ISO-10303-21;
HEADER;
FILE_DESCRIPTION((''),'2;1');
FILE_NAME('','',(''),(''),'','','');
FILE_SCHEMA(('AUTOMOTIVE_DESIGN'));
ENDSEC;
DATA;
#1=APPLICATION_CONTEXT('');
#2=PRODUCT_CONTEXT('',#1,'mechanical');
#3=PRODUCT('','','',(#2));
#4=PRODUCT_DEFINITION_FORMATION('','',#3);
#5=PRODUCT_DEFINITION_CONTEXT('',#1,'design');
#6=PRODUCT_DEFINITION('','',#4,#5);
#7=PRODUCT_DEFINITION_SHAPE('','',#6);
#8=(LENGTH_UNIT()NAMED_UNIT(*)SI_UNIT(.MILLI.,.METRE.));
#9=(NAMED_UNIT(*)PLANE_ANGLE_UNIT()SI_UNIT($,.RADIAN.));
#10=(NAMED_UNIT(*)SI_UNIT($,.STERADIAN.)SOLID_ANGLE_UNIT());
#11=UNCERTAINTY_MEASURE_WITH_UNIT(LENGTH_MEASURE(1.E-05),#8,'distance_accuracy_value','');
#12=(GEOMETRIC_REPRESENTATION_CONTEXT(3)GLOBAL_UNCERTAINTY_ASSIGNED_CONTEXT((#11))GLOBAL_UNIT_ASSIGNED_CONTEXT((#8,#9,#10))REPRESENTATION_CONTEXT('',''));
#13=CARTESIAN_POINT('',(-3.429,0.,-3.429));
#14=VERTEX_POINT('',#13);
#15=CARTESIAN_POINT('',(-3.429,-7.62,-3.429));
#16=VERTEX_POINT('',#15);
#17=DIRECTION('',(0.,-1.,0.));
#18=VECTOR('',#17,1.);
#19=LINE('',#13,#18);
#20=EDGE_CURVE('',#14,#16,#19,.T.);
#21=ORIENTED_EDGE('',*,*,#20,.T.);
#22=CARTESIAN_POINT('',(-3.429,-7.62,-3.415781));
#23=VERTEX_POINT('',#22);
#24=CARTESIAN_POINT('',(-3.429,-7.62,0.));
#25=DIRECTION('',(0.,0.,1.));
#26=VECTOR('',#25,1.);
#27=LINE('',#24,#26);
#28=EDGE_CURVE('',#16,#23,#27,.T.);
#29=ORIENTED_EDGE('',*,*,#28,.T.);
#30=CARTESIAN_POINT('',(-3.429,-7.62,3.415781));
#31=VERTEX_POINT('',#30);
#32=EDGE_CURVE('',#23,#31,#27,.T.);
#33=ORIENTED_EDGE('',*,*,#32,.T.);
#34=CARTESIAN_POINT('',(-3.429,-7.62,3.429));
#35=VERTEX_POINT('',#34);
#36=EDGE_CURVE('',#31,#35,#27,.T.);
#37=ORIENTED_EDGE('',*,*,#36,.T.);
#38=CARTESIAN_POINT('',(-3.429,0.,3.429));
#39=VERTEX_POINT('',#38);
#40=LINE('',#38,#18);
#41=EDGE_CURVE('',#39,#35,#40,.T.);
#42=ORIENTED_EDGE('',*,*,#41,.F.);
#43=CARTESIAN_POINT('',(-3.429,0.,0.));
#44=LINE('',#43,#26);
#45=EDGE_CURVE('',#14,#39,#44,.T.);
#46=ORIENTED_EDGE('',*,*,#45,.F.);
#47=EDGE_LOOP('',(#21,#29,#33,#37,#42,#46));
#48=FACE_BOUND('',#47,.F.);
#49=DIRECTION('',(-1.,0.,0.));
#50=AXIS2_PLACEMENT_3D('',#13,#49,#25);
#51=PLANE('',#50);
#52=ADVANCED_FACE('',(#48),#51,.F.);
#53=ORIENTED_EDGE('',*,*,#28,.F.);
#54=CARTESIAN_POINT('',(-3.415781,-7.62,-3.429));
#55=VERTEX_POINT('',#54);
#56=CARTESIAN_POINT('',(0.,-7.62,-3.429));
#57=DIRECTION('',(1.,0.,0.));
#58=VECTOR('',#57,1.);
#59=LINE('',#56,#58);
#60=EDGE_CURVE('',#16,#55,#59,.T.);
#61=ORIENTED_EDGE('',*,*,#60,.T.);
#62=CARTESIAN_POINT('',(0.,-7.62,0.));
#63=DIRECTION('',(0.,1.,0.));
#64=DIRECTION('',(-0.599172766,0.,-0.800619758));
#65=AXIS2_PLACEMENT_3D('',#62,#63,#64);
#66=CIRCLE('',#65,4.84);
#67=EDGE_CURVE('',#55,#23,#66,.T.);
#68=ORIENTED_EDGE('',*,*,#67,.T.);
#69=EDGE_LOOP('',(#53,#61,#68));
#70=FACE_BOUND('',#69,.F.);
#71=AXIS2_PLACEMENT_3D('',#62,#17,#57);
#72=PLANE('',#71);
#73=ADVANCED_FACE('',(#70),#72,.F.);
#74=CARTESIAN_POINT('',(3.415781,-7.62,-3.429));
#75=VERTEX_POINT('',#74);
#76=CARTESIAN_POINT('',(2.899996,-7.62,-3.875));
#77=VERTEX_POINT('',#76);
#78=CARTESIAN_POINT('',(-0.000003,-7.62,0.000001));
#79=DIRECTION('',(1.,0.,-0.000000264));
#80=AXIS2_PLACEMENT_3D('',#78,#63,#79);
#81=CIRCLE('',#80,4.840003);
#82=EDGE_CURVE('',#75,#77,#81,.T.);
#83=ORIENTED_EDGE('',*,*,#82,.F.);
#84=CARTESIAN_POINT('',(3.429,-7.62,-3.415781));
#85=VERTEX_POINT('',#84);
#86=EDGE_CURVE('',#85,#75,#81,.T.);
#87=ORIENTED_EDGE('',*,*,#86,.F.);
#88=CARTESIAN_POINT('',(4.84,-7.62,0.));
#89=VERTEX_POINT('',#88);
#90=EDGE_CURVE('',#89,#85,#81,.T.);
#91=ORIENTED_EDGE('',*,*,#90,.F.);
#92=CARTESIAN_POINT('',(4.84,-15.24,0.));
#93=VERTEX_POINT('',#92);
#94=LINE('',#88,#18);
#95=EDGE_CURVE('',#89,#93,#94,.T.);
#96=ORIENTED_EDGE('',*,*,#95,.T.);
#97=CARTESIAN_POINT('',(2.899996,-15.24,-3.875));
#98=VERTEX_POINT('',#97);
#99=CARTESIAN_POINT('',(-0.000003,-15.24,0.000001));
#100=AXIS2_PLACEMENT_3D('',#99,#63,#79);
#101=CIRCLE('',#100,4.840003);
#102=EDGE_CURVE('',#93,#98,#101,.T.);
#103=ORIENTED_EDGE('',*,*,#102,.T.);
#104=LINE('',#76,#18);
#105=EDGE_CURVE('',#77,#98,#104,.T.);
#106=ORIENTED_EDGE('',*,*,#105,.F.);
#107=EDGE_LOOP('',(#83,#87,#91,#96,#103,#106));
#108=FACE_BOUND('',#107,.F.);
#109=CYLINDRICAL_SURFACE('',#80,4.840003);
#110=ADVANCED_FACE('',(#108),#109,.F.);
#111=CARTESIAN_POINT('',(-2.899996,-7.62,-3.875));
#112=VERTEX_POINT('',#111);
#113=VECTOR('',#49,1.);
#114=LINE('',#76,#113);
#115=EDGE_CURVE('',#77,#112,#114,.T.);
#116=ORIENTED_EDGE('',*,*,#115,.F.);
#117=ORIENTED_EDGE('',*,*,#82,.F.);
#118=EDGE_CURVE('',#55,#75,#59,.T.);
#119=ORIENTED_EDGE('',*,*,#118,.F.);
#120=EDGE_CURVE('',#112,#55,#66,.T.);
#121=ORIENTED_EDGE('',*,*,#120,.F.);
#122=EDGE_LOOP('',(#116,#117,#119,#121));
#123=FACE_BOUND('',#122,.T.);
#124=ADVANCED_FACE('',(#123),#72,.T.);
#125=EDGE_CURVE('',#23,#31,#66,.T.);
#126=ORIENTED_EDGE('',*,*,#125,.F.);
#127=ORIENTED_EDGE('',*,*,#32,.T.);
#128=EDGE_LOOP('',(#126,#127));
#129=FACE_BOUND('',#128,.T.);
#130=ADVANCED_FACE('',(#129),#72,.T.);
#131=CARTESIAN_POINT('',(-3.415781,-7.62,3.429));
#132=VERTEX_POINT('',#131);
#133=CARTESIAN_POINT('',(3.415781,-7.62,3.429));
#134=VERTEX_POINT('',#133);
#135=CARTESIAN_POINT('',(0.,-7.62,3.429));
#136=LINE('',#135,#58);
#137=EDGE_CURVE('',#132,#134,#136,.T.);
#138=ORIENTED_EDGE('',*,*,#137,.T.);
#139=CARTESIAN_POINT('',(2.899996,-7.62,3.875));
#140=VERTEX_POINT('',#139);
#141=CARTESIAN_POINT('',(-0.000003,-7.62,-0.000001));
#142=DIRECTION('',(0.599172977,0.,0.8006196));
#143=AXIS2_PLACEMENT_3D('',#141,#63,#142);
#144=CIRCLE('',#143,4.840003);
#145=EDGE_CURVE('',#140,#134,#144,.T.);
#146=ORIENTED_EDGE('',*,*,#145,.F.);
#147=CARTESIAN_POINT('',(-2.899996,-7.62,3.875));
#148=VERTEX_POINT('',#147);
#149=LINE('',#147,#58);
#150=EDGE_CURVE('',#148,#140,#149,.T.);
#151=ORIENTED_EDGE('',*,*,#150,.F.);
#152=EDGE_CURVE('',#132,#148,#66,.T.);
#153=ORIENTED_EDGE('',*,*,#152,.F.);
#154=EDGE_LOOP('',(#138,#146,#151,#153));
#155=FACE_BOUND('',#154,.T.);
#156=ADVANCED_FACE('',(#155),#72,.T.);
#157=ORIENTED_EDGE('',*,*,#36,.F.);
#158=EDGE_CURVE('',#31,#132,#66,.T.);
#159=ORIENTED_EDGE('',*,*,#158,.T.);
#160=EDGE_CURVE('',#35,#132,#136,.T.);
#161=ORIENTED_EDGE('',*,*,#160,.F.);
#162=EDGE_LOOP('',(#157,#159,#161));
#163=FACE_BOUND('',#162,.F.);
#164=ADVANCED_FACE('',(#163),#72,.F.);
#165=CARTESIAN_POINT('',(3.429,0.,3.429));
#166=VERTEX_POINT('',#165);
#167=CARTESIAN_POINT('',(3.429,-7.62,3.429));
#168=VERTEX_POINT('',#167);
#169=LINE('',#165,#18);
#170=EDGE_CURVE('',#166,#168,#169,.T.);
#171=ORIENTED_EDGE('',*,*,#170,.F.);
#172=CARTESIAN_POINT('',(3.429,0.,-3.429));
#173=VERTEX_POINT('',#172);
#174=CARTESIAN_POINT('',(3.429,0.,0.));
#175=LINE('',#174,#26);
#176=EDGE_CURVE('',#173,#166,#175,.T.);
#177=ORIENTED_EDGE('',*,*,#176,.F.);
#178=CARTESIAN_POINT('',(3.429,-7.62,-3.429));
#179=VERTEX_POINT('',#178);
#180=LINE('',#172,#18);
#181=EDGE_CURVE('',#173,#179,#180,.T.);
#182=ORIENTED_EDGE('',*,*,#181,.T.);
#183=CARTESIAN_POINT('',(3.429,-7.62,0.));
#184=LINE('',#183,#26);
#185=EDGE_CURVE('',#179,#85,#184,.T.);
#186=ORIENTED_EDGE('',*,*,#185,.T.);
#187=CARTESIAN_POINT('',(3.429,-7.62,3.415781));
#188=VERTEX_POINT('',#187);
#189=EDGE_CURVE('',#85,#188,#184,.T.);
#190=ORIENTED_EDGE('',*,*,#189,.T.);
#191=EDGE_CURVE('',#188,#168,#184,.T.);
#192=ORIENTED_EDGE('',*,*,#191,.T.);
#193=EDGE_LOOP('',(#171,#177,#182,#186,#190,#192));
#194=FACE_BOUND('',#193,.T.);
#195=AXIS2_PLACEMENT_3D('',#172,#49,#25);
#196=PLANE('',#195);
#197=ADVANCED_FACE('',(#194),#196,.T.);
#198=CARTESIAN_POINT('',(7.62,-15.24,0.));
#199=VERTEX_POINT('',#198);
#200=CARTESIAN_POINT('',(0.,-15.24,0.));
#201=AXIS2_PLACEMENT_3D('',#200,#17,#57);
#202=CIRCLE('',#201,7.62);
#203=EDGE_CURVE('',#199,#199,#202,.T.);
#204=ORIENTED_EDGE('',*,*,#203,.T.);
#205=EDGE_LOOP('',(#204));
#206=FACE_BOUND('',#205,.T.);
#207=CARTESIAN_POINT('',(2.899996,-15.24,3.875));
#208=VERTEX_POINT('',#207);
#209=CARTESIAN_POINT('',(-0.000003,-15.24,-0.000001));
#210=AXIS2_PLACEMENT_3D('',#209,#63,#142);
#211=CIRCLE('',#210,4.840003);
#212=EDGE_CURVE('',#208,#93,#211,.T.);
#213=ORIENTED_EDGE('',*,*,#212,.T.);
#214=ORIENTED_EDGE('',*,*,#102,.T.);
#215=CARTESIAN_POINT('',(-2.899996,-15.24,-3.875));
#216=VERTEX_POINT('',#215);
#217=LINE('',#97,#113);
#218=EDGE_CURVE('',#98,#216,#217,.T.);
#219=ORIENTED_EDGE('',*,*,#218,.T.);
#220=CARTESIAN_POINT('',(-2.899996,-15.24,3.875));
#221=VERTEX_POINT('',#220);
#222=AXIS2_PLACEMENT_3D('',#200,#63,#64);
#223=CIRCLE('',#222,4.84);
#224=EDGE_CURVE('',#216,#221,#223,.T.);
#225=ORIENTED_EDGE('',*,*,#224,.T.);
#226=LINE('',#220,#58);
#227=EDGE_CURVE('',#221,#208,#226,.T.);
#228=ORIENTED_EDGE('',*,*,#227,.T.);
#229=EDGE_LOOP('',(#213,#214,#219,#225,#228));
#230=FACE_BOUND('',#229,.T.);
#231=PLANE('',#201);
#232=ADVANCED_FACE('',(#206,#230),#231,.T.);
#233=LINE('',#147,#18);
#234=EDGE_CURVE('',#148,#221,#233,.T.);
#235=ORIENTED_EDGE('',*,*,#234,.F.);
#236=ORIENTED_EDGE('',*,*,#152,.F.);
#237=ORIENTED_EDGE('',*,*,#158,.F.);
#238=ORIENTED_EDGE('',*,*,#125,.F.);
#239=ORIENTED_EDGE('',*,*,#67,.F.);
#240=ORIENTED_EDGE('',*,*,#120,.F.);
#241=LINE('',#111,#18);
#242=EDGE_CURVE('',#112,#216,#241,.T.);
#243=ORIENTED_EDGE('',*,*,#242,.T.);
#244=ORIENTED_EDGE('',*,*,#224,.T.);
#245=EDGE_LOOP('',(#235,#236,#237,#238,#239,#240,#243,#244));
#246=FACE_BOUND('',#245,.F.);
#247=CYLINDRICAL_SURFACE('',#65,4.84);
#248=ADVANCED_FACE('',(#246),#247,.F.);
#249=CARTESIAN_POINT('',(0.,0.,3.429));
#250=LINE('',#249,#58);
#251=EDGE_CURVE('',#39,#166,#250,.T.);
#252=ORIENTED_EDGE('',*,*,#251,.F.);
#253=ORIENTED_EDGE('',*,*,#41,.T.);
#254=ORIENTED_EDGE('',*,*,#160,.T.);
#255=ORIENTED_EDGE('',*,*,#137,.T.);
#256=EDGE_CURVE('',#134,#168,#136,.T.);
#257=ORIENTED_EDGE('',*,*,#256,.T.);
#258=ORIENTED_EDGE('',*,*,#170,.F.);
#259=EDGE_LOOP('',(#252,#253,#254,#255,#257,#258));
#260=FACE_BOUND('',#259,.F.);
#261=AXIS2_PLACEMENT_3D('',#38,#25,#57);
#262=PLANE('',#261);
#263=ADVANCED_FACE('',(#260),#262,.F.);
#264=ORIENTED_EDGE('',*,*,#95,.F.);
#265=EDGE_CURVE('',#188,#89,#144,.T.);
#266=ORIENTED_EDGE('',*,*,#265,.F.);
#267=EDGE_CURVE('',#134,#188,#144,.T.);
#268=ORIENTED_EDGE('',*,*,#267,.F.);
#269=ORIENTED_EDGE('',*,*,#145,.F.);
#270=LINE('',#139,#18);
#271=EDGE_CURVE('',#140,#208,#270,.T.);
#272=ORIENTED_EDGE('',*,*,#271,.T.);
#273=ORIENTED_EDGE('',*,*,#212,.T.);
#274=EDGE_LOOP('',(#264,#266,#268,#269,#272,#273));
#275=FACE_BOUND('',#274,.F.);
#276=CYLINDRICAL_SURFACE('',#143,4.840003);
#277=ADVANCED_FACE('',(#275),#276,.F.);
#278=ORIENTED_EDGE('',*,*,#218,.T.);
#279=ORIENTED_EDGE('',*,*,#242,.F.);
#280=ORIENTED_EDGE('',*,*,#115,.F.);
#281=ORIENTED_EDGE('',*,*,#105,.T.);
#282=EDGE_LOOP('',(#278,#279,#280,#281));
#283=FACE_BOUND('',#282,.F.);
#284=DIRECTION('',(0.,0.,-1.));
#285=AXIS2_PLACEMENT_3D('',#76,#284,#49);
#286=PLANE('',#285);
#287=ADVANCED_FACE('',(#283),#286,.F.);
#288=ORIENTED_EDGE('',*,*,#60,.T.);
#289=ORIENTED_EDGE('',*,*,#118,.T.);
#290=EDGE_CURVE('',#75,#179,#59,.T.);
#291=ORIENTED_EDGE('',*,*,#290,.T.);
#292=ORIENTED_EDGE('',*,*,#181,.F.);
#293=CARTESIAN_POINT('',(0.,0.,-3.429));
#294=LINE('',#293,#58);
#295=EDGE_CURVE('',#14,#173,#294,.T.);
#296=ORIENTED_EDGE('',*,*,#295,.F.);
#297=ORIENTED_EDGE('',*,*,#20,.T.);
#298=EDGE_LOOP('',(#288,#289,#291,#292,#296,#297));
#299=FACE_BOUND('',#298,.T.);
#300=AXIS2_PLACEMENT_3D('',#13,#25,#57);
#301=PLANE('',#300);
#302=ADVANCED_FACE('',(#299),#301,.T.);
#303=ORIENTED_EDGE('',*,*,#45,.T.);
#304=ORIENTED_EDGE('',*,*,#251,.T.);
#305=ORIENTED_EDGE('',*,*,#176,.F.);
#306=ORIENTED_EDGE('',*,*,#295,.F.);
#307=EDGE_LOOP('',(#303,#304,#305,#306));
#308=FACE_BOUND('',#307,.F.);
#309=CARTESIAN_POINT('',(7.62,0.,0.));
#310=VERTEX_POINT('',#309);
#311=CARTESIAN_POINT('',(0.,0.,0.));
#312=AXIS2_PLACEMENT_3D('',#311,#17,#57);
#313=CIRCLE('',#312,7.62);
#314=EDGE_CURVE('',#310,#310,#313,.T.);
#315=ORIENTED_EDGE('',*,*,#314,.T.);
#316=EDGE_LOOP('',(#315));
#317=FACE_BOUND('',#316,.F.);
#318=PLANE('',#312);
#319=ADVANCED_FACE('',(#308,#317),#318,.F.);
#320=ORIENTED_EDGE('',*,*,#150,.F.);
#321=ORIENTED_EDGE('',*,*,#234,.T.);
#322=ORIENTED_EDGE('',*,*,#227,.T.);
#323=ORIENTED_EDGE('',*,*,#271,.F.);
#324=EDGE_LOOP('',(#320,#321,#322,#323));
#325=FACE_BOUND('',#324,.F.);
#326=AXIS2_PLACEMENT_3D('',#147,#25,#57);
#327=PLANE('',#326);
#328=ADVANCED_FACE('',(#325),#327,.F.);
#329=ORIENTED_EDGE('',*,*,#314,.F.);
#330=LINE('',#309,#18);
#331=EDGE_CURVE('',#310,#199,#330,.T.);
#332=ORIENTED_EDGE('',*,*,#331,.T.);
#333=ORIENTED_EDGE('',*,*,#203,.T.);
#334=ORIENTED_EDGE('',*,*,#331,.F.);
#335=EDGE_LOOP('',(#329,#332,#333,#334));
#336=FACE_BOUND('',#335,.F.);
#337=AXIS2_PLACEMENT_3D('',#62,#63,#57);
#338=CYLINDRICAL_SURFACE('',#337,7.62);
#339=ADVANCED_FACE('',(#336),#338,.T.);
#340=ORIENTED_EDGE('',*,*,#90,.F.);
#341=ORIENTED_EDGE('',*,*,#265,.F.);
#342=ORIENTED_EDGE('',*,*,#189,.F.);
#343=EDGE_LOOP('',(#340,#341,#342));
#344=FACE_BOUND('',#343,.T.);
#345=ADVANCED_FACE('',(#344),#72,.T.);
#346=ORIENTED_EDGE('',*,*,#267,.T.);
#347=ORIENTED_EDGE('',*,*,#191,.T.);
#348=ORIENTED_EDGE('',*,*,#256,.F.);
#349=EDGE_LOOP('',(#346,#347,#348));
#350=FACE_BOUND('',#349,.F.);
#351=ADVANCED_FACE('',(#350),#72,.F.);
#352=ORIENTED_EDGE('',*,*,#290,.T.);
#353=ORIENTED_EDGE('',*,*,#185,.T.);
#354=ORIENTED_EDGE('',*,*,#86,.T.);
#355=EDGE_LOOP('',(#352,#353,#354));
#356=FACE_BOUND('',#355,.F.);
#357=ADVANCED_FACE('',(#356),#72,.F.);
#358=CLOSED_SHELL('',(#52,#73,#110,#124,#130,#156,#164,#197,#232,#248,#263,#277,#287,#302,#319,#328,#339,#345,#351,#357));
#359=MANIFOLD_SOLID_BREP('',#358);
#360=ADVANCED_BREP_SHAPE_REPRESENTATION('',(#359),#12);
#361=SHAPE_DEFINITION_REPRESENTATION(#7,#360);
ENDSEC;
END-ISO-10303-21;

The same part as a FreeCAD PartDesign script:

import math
import FreeCAD as App
import Part
import Sketcher
from FreeCAD import Vector
Q = App.Units.Quantity

doc = App.newDocument("Part")
body = doc.addObject("PartDesign::Body", "Body")

# Sketch on XZ plane
sketch1 = body.newObject("Sketcher::SketchObject", "Sketch")
sketch1.AttachmentSupport = (doc.getObject("XZ_Plane"), [""])
sketch1.MapMode = "FlatFace"
sketch1.addGeometry([
    Part.Circle(Vector(0, 0, 0), Vector(0, 0, 1), 7.62),  # 0
    Part.LineSegment(Vector(3.429, -3.429, 0), Vector(-3.429, -3.429, 0)),  # 1
    Part.LineSegment(Vector(-3.429, -3.429, 0), Vector(-3.429, 3.429, 0)),  # 2
    Part.LineSegment(Vector(-3.429, 3.429, 0), Vector(3.429, 3.429, 0)),  # 3
    Part.LineSegment(Vector(3.429, 3.429, 0), Vector(3.429, -3.429, 0)),  # 4
], False)
sketch1.addConstraint([
    Sketcher.Constraint("Coincident", 1, 2, 2, 1),
    Sketcher.Constraint("Coincident", 2, 2, 3, 1),
    Sketcher.Constraint("Coincident", 3, 2, 4, 1),
    Sketcher.Constraint("Coincident", 4, 2, 1, 1),
    Sketcher.Constraint("Horizontal", 1),
    Sketcher.Constraint("Vertical", 2),
    Sketcher.Constraint("Horizontal", 3),
    Sketcher.Constraint("Vertical", 4),
    Sketcher.Constraint("Coincident", 0, 3, -1, 1),
    Sketcher.Constraint("Symmetric", 1, 2, 3, 2, -1, 1),
    Sketcher.Constraint("Equal", 3, 2),
    Sketcher.Constraint("Diameter", 0, Q("0.6 in")),
    Sketcher.Constraint("DistanceX", 1, 2, 1, 1, Q("0.27 in")),
])
pad1 = body.newObject("PartDesign::Pad", "Pad")
pad1.Profile = sketch1
pad1.Length = Q("0.3 in")

# Sketch on XZ plane
sketch2 = body.newObject("Sketcher::SketchObject", "Sketch001")
sketch2.AttachmentSupport = (doc.getObject("XZ_Plane"), [""])
sketch2.MapMode = "FlatFace"
sketch2.AttachmentOffset = App.Placement(Vector(0, 0, 0.3 * 25.4), App.Rotation())
sketch2.addGeometry([
    Part.Circle(Vector(0, 0, 0), Vector(0, 0, 1), 7.62),  # 0
    Part.ArcOfCircle(Part.Circle(Vector(0, 0, 0), Vector(0, 0, 1), 4.84), math.radians(126.810674), math.radians(233.189326)),  # 1
    Part.LineSegment(Vector(-2.899996, 3.875, 0), Vector(2.899996, 3.875, 0)),  # 2
    Part.ArcOfCircle(Part.Circle(Vector(-0.000003, -0.000001, 0), Vector(0, 0, 1), 4.840003), math.radians(0.000015), math.radians(53.189311)),  # 3
    Part.ArcOfCircle(Part.Circle(Vector(-0.000003, 0.000001, 0), Vector(0, 0, 1), 4.840003), math.radians(-53.189311), math.radians(-0.000015)),  # 4
    Part.LineSegment(Vector(2.899996, -3.875, 0), Vector(-2.899996, -3.875, 0)),  # 5
], False)
sketch2.addConstraint([
    Sketcher.Constraint("Coincident", 1, 1, 2, 1),
    Sketcher.Constraint("Coincident", 2, 2, 3, 2),
    Sketcher.Constraint("Tangent", 3, 1, 4, 2),
    Sketcher.Constraint("Coincident", 4, 1, 5, 1),
    Sketcher.Constraint("Coincident", 5, 2, 1, 2),
    Sketcher.Constraint("Horizontal", 2),
    Sketcher.Constraint("Horizontal", 5),
    Sketcher.Constraint("Coincident", 0, 3, -1, 1),
    Sketcher.Constraint("Coincident", 1, 3, -1, 1),
    Sketcher.Constraint("Coincident", 3, 3, -1, 1),
    Sketcher.Constraint("Equal", 3, 4),
    Sketcher.Constraint("Symmetric", 1, 1, 4, 1, -1, 1),
    Sketcher.Constraint("PointOnObject", 3, 1, -1),
    Sketcher.Constraint("Diameter", 0, Q("0.6 in")),
    Sketcher.Constraint("Radius", 1, Q("4.84 mm")),
    Sketcher.Constraint("DistanceX", 2, 1, 2, 2, Q("5.799992 mm")),
])
pad2 = body.newObject("PartDesign::Pad", "Pad001")
pad2.Profile = sketch2
pad2.Length = Q("0.3 in")

doc.recompute()
